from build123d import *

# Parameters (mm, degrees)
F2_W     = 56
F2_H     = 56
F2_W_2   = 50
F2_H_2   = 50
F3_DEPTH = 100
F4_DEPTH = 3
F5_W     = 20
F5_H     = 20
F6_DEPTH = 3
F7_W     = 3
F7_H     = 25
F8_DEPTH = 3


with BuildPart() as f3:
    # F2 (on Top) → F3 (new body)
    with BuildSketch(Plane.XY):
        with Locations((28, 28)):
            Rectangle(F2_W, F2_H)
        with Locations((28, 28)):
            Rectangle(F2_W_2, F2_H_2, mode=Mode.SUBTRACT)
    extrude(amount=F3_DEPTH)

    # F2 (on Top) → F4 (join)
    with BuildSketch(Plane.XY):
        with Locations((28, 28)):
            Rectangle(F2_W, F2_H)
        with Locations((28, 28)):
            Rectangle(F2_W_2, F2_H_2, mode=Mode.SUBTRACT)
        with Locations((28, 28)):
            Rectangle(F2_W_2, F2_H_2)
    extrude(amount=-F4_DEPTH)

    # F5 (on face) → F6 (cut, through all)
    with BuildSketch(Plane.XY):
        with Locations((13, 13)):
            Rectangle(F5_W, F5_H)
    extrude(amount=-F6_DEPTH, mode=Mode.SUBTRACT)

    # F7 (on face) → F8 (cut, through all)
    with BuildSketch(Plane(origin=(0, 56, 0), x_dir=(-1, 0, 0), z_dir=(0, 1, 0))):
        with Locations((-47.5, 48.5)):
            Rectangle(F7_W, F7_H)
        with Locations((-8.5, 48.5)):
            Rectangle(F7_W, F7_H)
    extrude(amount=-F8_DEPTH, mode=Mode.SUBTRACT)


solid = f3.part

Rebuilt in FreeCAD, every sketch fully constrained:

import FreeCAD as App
import Part
import Sketcher
Q = App.Units.Quantity

doc = App.newDocument("Part")
body = doc.addObject("PartDesign::Body", "Body")

# Sketch on XY plane
sketch1 = doc.addObject("Sketcher::SketchObject", "Sketch")
body.addObject(sketch1)
sketch1.AttachmentSupport = (doc.XY_Plane, [""])
sketch1.MapMode = "FlatFace"
sketch1.addGeometry([
    Part.LineSegment(App.Vector(0, 56, 0), App.Vector(0, 0, 0)),  # 0
    Part.LineSegment(App.Vector(0, 0, 0), App.Vector(56, 0, 0)),  # 1
    Part.LineSegment(App.Vector(56, 0, 0), App.Vector(56, 56, 0)),  # 2
    Part.LineSegment(App.Vector(56, 56, 0), App.Vector(0, 56, 0)),  # 3
    Part.LineSegment(App.Vector(53, 3, 0), App.Vector(3, 3, 0)),  # 4
    Part.LineSegment(App.Vector(3, 3, 0), App.Vector(3, 53, 0)),  # 5
    Part.LineSegment(App.Vector(3, 53, 0), App.Vector(53, 53, 0)),  # 6
    Part.LineSegment(App.Vector(53, 53, 0), App.Vector(53, 3, 0)),  # 7
], False)
sketch1.addConstraint([
    Sketcher.Constraint("Coincident", 0, 2, 1, 1),
    Sketcher.Constraint("Coincident", 1, 2, 2, 1),
    Sketcher.Constraint("Coincident", 2, 2, 3, 1),
    Sketcher.Constraint("Coincident", 3, 2, 0, 1),
    Sketcher.Constraint("Coincident", 4, 2, 5, 1),
    Sketcher.Constraint("Coincident", 5, 2, 6, 1),
    Sketcher.Constraint("Coincident", 6, 2, 7, 1),
    Sketcher.Constraint("Coincident", 7, 2, 4, 1),
    Sketcher.Constraint("Vertical", 0),
    Sketcher.Constraint("Horizontal", 1),
    Sketcher.Constraint("Vertical", 2),
    Sketcher.Constraint("Horizontal", 3),
    Sketcher.Constraint("Horizontal", 4),
    Sketcher.Constraint("Vertical", 5),
    Sketcher.Constraint("Horizontal", 6),
    Sketcher.Constraint("Vertical", 7),
    Sketcher.Constraint("Coincident", 0, 2, -1, 1),
    Sketcher.Constraint("Equal", 3, 0),
    Sketcher.Constraint("Equal", 6, 5),
    Sketcher.Constraint("DistanceX", 1, 1, 1, 2, Q("56 mm")),
    Sketcher.Constraint("DistanceX", 4, 2, 4, 1, Q("50 mm")),
    Sketcher.Constraint("DistanceX", -1, 1, 4, 2, Q("3 mm")),
    Sketcher.Constraint("DistanceY", -1, 1, 4, 2, Q("3 mm")),
])
pad1 = doc.addObject("PartDesign::Pad", "Pad")
body.addObject(pad1)
pad1.Profile = sketch1
pad1.Length = 100

# Sketch on XY plane
sketch2 = doc.addObject("Sketcher::SketchObject", "Sketch001")
body.addObject(sketch2)
sketch2.AttachmentSupport = (doc.XY_Plane, [""])
sketch2.MapMode = "FlatFace"
sketch2.addGeometry([
    Part.LineSegment(App.Vector(0, 56, 0), App.Vector(0, 0, 0)),
    Part.LineSegment(App.Vector(0, 0, 0), App.Vector(56, 0, 0)),
    Part.LineSegment(App.Vector(56, 0, 0), App.Vector(56, 56, 0)),
    Part.LineSegment(App.Vector(56, 56, 0), App.Vector(0, 56, 0)),
], False)
sketch2.addConstraint([
    Sketcher.Constraint("Coincident", 0, 2, 1, 1),
    Sketcher.Constraint("Coincident", 1, 2, 2, 1),
    Sketcher.Constraint("Coincident", 2, 2, 3, 1),
    Sketcher.Constraint("Coincident", 3, 2, 0, 1),
    Sketcher.Constraint("Vertical", 0),
    Sketcher.Constraint("Horizontal", 1),
    Sketcher.Constraint("Vertical", 2),
    Sketcher.Constraint("Horizontal", 3),
    Sketcher.Constraint("Coincident", 0, 2, -1, 1),
    Sketcher.Constraint("Equal", 3, 0),
    Sketcher.Constraint("DistanceX", 1, 1, 1, 2, Q("56 mm")),
])
pad2 = doc.addObject("PartDesign::Pad", "Pad001")
body.addObject(pad2)
pad2.Profile = sketch2
pad2.Length = 3
pad2.Reversed = True

# Sketch on XY plane
sketch3 = doc.addObject("Sketcher::SketchObject", "Sketch002")
body.addObject(sketch3)
sketch3.AttachmentSupport = (doc.XY_Plane, [""])
sketch3.MapMode = "FlatFace"
sketch3.addGeometry([
    Part.LineSegment(App.Vector(3, 23, 0), App.Vector(3, 3, 0)),
    Part.LineSegment(App.Vector(3, 3, 0), App.Vector(23, 3, 0)),
    Part.LineSegment(App.Vector(23, 3, 0), App.Vector(23, 23, 0)),
    Part.LineSegment(App.Vector(23, 23, 0), App.Vector(3, 23, 0)),
], False)
sketch3.addConstraint([
    Sketcher.Constraint("Coincident", 0, 2, 1, 1),
    Sketcher.Constraint("Coincident", 1, 2, 2, 1),
    Sketcher.Constraint("Coincident", 2, 2, 3, 1),
    Sketcher.Constraint("Coincident", 3, 2, 0, 1),
    Sketcher.Constraint("Vertical", 0),
    Sketcher.Constraint("Horizontal", 1),
    Sketcher.Constraint("Vertical", 2),
    Sketcher.Constraint("Horizontal", 3),
    Sketcher.Constraint("Equal", 3, 0),
    Sketcher.Constraint("DistanceX", 1, 1, 1, 2, Q("20 mm")),
    Sketcher.Constraint("DistanceX", -1, 1, 0, 2, Q("3 mm")),
    Sketcher.Constraint("DistanceY", -1, 1, 0, 2, Q("3 mm")),
])
pocket1 = doc.addObject("PartDesign::Pocket", "Pocket")
body.addObject(pocket1)
pocket1.Profile = sketch3
pocket1.Type = "ThroughAll"

# Sketch on XZ plane
sketch4 = doc.addObject("Sketcher::SketchObject", "Sketch003")
body.addObject(sketch4)
sketch4.AttachmentSupport = (doc.XZ_Plane, [""])
sketch4.MapMode = "FlatFace"
sketch4.AttachmentOffset = App.Placement(App.Vector(0, 0, -56), App.Rotation())
sketch4.addGeometry([
    Part.LineSegment(App.Vector(49, 61, 0), App.Vector(49, 36, 0)),  # 0
    Part.LineSegment(App.Vector(49, 36, 0), App.Vector(46, 36, 0)),  # 1
    Part.LineSegment(App.Vector(46, 36, 0), App.Vector(46, 61, 0)),  # 2
    Part.LineSegment(App.Vector(46, 61, 0), App.Vector(49, 61, 0)),  # 3
    Part.LineSegment(App.Vector(10, 61, 0), App.Vector(10, 36, 0)),  # 4
    Part.LineSegment(App.Vector(10, 36, 0), App.Vector(7, 36, 0)),  # 5
    Part.LineSegment(App.Vector(7, 36, 0), App.Vector(7, 61, 0)),  # 6
    Part.LineSegment(App.Vector(7, 61, 0), App.Vector(10, 61, 0)),  # 7
], False)
sketch4.addConstraint([
    Sketcher.Constraint("Coincident", 0, 2, 1, 1),
    Sketcher.Constraint("Coincident", 1, 2, 2, 1),
    Sketcher.Constraint("Coincident", 2, 2, 3, 1),
    Sketcher.Constraint("Coincident", 3, 2, 0, 1),
    Sketcher.Constraint("Coincident", 4, 2, 5, 1),
    Sketcher.Constraint("Coincident", 5, 2, 6, 1),
    Sketcher.Constraint("Coincident", 6, 2, 7, 1),
    Sketcher.Constraint("Coincident", 7, 2, 4, 1),
    Sketcher.Constraint("Vertical", 0),
    Sketcher.Constraint("Horizontal", 1),
    Sketcher.Constraint("Vertical", 2),
    Sketcher.Constraint("Horizontal", 3),
    Sketcher.Constraint("Vertical", 4),
    Sketcher.Constraint("Horizontal", 5),
    Sketcher.Constraint("Vertical", 6),
    Sketcher.Constraint("Horizontal", 7),
    Sketcher.Constraint("Horizontal", 1, 2, 4, 2),
    Sketcher.Constraint("Horizontal", 3, 2, 6, 2),
    Sketcher.Constraint("Equal", 3, 5),
    Sketcher.Constraint("DistanceX", 1, 2, 1, 1, Q("3 mm")),
    Sketcher.Constraint("DistanceY", 0, 2, 0, 1, Q("25 mm")),
    Sketcher.Constraint("DistanceX", -1, 1, 0, 2, Q("49 mm")),
    Sketcher.Constraint("DistanceY", -1, 1, 0, 2, Q("36 mm")),
    Sketcher.Constraint("DistanceX", -1, 1, 4, 2, Q("10 mm")),
])
pocket2 = doc.addObject("PartDesign::Pocket", "Pocket001")
body.addObject(pocket2)
pocket2.Profile = sketch4
pocket2.Length = 3
pocket2.Reversed = True

doc.recompute()
